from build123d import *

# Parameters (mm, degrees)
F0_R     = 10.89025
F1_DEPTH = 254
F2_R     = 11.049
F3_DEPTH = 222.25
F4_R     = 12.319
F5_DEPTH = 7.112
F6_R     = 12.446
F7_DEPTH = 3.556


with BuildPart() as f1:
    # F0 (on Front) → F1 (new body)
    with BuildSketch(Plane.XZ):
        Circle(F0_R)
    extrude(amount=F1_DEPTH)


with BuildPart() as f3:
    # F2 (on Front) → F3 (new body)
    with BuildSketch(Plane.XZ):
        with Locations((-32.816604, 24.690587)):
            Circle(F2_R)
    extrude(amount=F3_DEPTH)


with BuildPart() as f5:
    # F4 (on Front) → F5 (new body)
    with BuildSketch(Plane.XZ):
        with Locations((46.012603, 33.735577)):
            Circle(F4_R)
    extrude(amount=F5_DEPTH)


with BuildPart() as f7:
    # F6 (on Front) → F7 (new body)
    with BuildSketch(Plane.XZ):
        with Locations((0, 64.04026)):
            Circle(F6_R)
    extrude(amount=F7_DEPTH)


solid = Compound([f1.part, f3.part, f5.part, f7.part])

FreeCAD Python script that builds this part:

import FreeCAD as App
import Part
import Sketcher
Q = App.Units.Quantity

doc = App.newDocument("Part")
body = doc.addObject("PartDesign::Body", "Body")

sketch1 = doc.addObject("Sketcher::SketchObject", "Sketch")
body.addObject(sketch1)
sketch1.AttachmentSupport = (doc.XZ_Plane, [""])
sketch1.MapMode = "FlatFace"
sketch1.addGeometry(Part.Circle(App.Vector(0, 0, 0), App.Vector(0, 0, 1), 11), False)
sketch1.addConstraint([
    Sketcher.Constraint("Coincident", 0, 3, -1, 1),
    Sketcher.Constraint("Diameter", 0, Q("0.8575 in")),
])
pad1 = doc.addObject("PartDesign::Pad", "Pad")
body.addObject(pad1)
pad1.Profile = sketch1
pad1.Length = Q("10 in")
body2 = doc.addObject("PartDesign::Body", "Body001")

sketch2 = doc.addObject("Sketcher::SketchObject", "Sketch001")
body2.addObject(sketch2)
sketch2.AttachmentSupport = (doc.getObject("XZ_Plane001"), [""])
sketch2.MapMode = "FlatFace"
sketch2.addGeometry(Part.Circle(App.Vector(-33, 25, 0), App.Vector(0, 0, 1), 11), False)
sketch2.addConstraint([
    Sketcher.Constraint("Diameter", 0, Q("0.87 in")),
    Sketcher.Constraint("DistanceX", 0, 3, -1, 1, 32.816604),
    Sketcher.Constraint("DistanceY", -1, 1, 0, 3, 24.690587),
])
pad2 = doc.addObject("PartDesign::Pad", "Pad001")
body2.addObject(pad2)
pad2.Profile = sketch2
pad2.Length = Q("8.75 in")
body3 = doc.addObject("PartDesign::Body", "Body002")

sketch3 = doc.addObject("Sketcher::SketchObject", "Sketch002")
body3.addObject(sketch3)
sketch3.AttachmentSupport = (doc.getObject("XZ_Plane002"), [""])
sketch3.MapMode = "FlatFace"
sketch3.addGeometry(Part.Circle(App.Vector(46, 34, 0), App.Vector(0, 0, 1), 12), False)
sketch3.addConstraint([
    Sketcher.Constraint("Diameter", 0, Q("0.97 in")),
    Sketcher.Constraint("DistanceX", -1, 1, 0, 3, 46.012603),
    Sketcher.Constraint("DistanceY", -1, 1, 0, 3, 33.735577),
])
pad3 = doc.addObject("PartDesign::Pad", "Pad002")
body3.addObject(pad3)
pad3.Profile = sketch3
pad3.Length = Q("0.28 in")
body4 = doc.addObject("PartDesign::Body", "Body003")

sketch4 = doc.addObject("Sketcher::SketchObject", "Sketch003")
body4.addObject(sketch4)
sketch4.AttachmentSupport = (doc.getObject("XZ_Plane003"), [""])
sketch4.MapMode = "FlatFace"
sketch4.addGeometry(Part.Circle(App.Vector(0, 64, 0), App.Vector(0, 0, 1), 12), False)
sketch4.addConstraint([
    Sketcher.Constraint("PointOnObject", 0, 3, -2),
    Sketcher.Constraint("Diameter", 0, Q("0.98 in")),
    Sketcher.Constraint("DistanceY", -1, 1, 0, 3, 64.04026),
])
pad4 = doc.addObject("PartDesign::Pad", "Pad003")
body4.addObject(pad4)
pad4.Profile = sketch4
pad4.Length = Q("0.14 in")

doc.recompute()
